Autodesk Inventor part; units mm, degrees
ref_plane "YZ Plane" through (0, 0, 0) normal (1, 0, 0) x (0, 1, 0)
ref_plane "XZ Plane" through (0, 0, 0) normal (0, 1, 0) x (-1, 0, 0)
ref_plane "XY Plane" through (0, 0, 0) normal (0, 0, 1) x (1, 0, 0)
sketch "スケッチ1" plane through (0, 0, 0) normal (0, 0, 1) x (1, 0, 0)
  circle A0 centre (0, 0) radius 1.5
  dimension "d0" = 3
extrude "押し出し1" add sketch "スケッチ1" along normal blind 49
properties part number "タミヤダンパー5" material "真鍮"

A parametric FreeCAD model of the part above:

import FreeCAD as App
import Part
import Sketcher
Q = App.Units.Quantity

doc = App.newDocument("Part")
body = doc.addObject("PartDesign::Body", "Body")

# Sketch on XY plane
sketch1 = body.newObject("Sketcher::SketchObject", "Sketch")
sketch1.AttachmentSupport = (doc.getObject("XY_Plane"), [""])
sketch1.MapMode = "FlatFace"
sketch1.addGeometry(Part.Circle(App.Vector(0, 0, 0), App.Vector(0, 0, 1), 1.5), False)
sketch1.addConstraint(Sketcher.Constraint("Coincident", 0, 3, -1, 1))
sketch1.addConstraint(Sketcher.Constraint("Diameter", 0, Q("3 mm")))
pad1 = body.newObject("PartDesign::Pad", "Pad")
pad1.Profile = sketch1
pad1.Length = 49

doc.recompute()
